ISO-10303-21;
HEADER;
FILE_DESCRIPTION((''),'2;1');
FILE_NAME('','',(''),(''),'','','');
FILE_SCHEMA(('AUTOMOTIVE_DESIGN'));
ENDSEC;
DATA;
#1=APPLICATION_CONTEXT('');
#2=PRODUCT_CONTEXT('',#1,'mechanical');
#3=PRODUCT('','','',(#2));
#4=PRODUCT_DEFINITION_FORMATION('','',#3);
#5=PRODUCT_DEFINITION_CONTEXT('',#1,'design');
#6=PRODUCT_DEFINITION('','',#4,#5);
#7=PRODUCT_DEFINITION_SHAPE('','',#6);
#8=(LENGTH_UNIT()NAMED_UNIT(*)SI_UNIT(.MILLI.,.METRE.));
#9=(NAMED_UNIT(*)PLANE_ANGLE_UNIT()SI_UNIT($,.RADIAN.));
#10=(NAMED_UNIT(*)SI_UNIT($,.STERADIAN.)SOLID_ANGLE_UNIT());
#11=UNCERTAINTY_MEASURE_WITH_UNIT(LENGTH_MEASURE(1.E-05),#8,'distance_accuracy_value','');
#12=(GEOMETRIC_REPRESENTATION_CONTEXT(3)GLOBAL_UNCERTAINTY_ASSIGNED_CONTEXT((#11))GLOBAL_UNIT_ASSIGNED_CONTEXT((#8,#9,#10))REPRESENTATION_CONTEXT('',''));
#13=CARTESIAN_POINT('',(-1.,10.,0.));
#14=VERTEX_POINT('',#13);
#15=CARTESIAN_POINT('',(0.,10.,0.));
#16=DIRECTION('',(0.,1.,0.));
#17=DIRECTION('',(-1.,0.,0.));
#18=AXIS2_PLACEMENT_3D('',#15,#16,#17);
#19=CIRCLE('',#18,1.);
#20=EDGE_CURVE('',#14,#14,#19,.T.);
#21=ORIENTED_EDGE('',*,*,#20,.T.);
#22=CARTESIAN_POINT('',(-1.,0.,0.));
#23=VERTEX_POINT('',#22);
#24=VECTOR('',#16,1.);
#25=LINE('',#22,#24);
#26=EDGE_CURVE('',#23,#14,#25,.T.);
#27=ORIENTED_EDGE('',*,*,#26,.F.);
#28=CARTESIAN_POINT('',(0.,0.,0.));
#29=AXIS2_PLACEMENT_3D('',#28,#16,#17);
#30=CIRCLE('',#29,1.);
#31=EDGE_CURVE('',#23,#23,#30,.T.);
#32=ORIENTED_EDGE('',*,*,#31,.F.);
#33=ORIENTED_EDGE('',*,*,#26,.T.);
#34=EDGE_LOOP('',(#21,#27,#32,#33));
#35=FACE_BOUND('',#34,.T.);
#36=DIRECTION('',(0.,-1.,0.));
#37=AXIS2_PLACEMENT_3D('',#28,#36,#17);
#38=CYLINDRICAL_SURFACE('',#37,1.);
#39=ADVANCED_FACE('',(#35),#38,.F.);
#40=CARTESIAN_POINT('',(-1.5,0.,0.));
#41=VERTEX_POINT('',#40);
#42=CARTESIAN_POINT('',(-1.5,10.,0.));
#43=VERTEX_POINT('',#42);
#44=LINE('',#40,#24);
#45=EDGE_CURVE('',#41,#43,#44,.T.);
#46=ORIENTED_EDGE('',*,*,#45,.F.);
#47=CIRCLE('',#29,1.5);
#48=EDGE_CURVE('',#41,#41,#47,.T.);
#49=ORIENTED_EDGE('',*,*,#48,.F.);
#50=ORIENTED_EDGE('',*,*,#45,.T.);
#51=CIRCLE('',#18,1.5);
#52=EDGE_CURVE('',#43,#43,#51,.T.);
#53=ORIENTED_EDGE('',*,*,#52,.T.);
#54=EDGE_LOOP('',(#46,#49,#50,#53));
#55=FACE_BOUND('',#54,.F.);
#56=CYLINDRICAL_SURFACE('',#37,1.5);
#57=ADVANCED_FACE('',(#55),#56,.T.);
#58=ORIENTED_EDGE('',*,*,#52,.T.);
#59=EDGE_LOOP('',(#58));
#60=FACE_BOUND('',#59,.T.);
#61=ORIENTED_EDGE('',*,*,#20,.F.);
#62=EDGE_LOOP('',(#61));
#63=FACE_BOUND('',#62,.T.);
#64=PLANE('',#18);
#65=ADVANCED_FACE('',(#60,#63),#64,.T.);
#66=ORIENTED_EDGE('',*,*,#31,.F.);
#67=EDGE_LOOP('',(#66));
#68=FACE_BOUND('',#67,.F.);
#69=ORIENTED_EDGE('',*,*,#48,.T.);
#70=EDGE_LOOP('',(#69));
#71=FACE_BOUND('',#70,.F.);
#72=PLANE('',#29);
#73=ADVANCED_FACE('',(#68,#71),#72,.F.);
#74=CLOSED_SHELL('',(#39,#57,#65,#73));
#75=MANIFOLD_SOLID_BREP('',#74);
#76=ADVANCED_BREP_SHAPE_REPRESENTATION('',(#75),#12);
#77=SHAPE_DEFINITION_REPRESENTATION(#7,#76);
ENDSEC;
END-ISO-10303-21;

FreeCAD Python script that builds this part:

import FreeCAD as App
import Part
import Sketcher
from FreeCAD import Vector
Q = App.Units.Quantity

doc = App.newDocument("Part")
body = doc.addObject("PartDesign::Body", "Body")

# Sketch on XZ plane
sketch1 = body.newObject("Sketcher::SketchObject", "Sketch")
sketch1.AttachmentSupport = (doc.getObject("XZ_Plane"), [""])
sketch1.MapMode = "FlatFace"
sketch1.addGeometry(Part.Circle(Vector(0, 0, 0), Vector(0, 0, 1), 1.5), False)
sketch1.addGeometry(Part.Circle(Vector(0, 0, 0), Vector(0, 0, 1), 1), False)
sketch1.addConstraint(Sketcher.Constraint("Coincident", 0, 3, -1, 1))
sketch1.addConstraint(Sketcher.Constraint("Coincident", 1, 3, -1, 1))
sketch1.addConstraint(Sketcher.Constraint("Diameter", 0, Q("3 mm")))
sketch1.addConstraint(Sketcher.Constraint("Diameter", 1, Q("2 mm")))
pad1 = body.newObject("PartDesign::Pad", "Pad")
pad1.Profile = sketch1
pad1.Length = 10
pad1.Reversed = True

doc.recompute()
